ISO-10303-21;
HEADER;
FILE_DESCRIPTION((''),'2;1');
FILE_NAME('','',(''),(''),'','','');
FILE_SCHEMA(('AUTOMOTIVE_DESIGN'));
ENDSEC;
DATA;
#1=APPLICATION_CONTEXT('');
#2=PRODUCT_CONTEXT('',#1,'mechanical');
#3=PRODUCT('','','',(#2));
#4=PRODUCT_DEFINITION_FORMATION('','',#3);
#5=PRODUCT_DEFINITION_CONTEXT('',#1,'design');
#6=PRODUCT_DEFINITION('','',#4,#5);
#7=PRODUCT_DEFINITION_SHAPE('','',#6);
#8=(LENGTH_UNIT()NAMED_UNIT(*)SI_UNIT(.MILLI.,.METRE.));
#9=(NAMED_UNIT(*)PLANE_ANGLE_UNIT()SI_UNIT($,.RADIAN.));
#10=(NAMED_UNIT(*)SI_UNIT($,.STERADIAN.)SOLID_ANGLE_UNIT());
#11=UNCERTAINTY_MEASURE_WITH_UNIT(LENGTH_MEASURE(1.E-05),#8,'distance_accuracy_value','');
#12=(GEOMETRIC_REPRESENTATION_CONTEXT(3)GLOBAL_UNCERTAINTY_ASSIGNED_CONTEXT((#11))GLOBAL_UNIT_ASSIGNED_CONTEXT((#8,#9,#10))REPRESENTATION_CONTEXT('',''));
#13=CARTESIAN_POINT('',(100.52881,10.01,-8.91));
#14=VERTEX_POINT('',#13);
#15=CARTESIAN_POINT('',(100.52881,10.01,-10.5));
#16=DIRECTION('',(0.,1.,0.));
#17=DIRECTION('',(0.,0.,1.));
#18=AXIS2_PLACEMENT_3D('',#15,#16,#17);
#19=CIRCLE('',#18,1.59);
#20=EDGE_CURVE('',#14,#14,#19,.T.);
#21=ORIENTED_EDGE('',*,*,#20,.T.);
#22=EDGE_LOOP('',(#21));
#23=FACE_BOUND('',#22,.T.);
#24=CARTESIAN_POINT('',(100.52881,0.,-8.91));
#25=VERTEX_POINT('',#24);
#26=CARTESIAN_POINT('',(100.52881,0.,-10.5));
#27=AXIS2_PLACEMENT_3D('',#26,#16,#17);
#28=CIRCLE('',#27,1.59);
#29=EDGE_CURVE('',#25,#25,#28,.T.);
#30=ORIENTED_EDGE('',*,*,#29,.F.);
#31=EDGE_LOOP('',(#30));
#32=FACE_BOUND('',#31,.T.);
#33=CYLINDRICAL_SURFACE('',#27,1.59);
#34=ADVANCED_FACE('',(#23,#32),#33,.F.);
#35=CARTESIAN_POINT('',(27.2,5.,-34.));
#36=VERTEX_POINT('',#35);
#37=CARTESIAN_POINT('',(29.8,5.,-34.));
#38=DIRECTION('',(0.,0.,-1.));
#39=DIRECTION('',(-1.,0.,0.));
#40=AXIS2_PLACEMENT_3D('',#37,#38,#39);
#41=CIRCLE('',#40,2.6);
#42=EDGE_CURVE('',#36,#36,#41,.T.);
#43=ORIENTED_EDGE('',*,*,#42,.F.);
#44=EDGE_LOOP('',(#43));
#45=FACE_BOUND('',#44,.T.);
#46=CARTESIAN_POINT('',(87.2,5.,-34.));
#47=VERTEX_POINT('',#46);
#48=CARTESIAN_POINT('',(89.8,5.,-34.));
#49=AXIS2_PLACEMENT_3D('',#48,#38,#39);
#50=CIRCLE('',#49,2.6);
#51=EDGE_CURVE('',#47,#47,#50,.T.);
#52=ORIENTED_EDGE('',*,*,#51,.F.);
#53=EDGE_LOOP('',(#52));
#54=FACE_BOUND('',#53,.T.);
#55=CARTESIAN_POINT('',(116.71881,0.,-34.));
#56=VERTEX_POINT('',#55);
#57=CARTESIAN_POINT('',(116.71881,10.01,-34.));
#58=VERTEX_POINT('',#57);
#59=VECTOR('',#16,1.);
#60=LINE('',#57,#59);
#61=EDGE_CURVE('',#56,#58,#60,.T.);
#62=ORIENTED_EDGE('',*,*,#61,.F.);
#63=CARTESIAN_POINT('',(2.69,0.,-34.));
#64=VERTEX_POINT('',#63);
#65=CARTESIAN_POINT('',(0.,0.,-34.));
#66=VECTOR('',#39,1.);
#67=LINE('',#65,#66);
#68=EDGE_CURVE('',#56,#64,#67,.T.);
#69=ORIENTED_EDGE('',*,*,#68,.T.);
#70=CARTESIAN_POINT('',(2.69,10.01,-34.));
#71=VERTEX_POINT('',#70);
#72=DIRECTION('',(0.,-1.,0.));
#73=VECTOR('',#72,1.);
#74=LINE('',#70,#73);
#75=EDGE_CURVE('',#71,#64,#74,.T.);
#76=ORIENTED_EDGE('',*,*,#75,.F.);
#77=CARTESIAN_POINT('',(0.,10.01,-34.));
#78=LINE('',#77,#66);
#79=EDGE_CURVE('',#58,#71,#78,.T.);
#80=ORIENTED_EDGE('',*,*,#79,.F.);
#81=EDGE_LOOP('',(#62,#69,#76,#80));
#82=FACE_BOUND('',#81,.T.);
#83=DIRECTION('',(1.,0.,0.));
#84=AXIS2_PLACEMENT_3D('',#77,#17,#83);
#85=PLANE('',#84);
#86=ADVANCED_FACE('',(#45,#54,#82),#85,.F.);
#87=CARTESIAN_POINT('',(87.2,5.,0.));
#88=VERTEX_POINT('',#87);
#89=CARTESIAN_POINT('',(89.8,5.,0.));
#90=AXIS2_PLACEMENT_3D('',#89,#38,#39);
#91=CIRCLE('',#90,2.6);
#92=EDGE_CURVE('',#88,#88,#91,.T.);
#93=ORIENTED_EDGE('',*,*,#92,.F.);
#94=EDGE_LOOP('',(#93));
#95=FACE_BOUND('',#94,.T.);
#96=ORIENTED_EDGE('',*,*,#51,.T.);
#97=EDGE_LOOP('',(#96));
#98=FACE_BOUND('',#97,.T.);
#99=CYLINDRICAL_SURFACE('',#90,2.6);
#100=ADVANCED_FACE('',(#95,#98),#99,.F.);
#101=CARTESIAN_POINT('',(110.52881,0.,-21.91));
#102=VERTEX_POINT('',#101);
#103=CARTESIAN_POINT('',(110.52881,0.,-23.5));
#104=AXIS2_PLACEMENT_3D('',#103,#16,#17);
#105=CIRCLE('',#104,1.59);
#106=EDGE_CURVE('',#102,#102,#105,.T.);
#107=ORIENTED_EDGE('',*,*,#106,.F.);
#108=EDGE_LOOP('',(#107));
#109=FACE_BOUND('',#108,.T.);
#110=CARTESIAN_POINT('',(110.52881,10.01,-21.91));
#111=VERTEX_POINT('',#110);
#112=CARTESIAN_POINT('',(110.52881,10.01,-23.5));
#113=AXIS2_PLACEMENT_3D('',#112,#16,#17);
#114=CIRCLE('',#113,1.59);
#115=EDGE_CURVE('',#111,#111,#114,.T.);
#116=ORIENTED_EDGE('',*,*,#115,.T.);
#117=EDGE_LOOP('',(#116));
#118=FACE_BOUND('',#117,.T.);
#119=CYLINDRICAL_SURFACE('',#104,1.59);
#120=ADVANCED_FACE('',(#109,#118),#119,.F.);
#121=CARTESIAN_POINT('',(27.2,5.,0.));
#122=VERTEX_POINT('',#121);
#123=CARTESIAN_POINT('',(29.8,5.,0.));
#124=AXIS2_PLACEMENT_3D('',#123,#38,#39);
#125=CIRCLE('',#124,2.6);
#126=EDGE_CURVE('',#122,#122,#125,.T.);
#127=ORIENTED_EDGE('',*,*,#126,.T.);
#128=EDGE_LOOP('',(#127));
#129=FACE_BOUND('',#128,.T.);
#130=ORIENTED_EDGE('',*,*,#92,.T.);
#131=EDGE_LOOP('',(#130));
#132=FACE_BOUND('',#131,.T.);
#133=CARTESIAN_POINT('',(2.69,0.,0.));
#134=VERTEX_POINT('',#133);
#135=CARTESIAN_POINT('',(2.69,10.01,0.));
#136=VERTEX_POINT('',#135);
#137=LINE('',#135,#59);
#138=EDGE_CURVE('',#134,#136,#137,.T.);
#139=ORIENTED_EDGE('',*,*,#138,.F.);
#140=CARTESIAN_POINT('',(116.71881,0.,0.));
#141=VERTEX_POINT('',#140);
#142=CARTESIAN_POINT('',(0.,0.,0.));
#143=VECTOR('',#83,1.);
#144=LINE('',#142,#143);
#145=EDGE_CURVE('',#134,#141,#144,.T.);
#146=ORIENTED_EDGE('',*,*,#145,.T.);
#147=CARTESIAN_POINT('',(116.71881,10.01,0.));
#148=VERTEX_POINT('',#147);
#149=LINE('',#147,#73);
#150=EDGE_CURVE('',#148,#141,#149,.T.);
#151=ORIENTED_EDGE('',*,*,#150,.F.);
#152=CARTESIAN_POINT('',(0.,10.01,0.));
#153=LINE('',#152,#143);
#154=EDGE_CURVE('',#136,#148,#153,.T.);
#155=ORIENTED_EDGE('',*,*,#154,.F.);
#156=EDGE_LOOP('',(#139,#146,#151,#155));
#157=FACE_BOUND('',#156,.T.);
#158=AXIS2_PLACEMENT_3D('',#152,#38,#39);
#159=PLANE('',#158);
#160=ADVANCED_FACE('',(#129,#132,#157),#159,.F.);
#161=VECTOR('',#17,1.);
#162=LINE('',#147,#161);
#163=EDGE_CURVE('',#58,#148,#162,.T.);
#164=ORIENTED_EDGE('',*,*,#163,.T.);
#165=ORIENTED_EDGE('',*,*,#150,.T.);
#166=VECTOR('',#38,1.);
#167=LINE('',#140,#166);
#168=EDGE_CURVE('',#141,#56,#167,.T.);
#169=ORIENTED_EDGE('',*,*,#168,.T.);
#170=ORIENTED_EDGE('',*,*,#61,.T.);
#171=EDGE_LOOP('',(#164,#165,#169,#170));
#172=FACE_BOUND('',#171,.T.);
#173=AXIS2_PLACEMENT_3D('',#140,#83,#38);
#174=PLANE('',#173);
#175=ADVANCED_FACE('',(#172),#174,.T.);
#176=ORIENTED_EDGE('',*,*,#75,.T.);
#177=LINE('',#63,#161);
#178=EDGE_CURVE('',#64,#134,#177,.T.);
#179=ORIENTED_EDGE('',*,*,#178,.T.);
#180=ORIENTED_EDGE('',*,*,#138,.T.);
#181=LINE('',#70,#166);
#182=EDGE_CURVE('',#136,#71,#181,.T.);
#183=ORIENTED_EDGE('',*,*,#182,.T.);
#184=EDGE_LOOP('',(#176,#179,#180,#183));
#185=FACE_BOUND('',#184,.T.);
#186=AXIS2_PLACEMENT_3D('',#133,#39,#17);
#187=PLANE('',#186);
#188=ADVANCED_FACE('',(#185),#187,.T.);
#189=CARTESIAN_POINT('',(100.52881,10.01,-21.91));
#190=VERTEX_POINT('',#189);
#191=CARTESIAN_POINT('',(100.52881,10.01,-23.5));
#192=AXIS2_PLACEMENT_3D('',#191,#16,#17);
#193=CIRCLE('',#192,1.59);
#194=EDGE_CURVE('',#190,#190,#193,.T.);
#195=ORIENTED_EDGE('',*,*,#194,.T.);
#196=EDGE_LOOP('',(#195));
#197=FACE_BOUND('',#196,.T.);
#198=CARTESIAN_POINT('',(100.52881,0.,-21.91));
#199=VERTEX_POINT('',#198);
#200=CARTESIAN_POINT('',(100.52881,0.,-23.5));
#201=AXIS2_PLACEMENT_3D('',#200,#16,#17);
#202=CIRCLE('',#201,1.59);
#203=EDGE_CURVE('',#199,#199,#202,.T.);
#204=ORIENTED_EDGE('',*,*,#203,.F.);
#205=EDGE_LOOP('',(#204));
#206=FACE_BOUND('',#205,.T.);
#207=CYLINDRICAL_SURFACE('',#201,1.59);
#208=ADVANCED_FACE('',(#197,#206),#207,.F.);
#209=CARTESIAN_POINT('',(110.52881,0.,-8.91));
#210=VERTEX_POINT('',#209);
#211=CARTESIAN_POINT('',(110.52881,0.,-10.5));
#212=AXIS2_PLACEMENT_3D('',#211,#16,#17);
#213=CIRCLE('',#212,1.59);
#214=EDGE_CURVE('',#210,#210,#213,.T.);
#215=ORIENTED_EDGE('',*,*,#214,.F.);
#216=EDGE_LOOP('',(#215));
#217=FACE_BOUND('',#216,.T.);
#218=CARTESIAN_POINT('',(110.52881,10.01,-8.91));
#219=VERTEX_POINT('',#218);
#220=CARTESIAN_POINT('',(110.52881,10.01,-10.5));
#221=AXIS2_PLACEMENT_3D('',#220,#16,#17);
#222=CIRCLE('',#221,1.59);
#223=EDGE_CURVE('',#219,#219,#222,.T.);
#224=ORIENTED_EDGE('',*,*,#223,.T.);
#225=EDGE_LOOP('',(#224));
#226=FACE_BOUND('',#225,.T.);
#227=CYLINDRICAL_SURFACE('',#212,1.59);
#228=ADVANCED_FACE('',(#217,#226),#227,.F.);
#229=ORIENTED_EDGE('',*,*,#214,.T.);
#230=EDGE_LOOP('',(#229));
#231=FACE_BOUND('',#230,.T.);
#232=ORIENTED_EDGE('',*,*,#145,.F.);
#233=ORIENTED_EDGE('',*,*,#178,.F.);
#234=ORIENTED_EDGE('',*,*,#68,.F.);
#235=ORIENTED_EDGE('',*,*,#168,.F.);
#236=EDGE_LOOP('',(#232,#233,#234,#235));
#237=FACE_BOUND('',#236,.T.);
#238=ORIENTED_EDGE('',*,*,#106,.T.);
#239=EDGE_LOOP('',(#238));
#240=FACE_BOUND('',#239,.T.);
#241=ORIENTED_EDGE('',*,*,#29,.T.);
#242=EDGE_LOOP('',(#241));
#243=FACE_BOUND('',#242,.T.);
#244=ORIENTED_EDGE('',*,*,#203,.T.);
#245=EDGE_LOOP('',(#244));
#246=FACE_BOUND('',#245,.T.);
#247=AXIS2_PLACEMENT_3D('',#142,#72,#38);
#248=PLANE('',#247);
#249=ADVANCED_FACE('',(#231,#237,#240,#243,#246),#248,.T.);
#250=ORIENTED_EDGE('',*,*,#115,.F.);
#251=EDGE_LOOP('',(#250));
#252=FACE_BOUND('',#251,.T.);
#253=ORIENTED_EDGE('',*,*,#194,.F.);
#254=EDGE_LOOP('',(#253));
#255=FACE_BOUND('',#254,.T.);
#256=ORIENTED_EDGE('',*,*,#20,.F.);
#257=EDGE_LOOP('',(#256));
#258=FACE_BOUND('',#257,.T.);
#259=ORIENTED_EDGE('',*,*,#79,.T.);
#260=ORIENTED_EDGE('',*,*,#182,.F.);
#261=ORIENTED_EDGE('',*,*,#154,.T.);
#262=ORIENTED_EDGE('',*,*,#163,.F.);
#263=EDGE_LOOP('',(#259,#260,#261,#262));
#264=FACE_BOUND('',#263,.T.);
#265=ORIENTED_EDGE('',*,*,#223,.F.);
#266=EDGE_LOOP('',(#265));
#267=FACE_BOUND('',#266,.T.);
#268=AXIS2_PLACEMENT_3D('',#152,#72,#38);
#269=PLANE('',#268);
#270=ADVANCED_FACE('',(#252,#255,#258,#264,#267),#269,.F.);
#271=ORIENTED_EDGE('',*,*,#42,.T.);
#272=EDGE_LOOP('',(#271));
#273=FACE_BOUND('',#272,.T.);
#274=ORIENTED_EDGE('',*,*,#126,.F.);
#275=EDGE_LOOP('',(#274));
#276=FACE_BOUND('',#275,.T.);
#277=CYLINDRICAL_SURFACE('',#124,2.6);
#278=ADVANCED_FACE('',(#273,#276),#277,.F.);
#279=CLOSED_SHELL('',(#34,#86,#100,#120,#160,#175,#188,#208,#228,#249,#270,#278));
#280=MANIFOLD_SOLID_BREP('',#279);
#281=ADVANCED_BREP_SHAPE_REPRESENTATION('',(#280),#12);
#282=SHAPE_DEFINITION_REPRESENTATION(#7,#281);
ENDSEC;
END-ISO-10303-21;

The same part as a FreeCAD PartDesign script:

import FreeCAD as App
import Part
import Sketcher
Q = App.Units.Quantity


def add_polygon(sketch, points):
    """Adds a closed chain of lines whose ends are joined by coincident constraints."""
    first, n = sketch.GeometryCount, len(points)
    for a, b in zip(points, points[1:] + points[:1]):
        sketch.addGeometry(Part.LineSegment(App.Vector(*a, 0), App.Vector(*b, 0)), False)
    for i in range(n):
        sketch.addConstraint(Sketcher.Constraint("Coincident", first + i, 2, first + (i + 1) % n, 1))

doc = App.newDocument("Part")
body = doc.addObject("PartDesign::Body", "Body")

# Sketch on XZ plane
sketch1 = body.newObject("Sketcher::SketchObject", "Sketch")
sketch1.AttachmentSupport = (doc.getObject("XZ_Plane"), [""])
sketch1.MapMode = "FlatFace"
add_polygon(sketch1, [(0, -34), (0, 0), (114, 0), (114, -34)])  # lines 0-3
sketch1.addConstraint([
    Sketcher.Constraint("Vertical", 0),
    Sketcher.Constraint("Horizontal", 1),
    Sketcher.Constraint("Vertical", 2),
    Sketcher.Constraint("Horizontal", 3),
    Sketcher.Constraint("Coincident", 0, 2, -1, 1),
    Sketcher.Constraint("DistanceY", 0, 1, 0, 2, Q("34 mm")),
    Sketcher.Constraint("DistanceX", 1, 1, 1, 2, Q("114.02881 mm")),
])
pad1 = body.newObject("PartDesign::Pad", "Pad")
pad1.Profile = sketch1
pad1.Length = 10.01
pad1.Reversed = True

# Sketch on XY plane
sketch2 = body.newObject("Sketcher::SketchObject", "Sketch001")
sketch2.AttachmentSupport = (doc.getObject("XY_Plane"), [""])
sketch2.MapMode = "FlatFace"
sketch2.AttachmentOffset = App.Placement(App.Vector(0, 0, -34), App.Rotation())
sketch2.addGeometry([
    Part.Circle(App.Vector(89.8, 5, 0), App.Vector(0, 0, 1), 2.6),
    Part.Circle(App.Vector(29.8, 5, 0), App.Vector(0, 0, 1), 2.6),
], False)
sketch2.addConstraint([
    Sketcher.Constraint("Equal", 0, 1),
    Sketcher.Constraint("Horizontal", 0, 3, 1, 3),
    Sketcher.Constraint("Diameter", 0, Q("5.2 mm")),
    Sketcher.Constraint("DistanceY", -1, 1, 0, 3, Q("5 mm")),
    Sketcher.Constraint("DistanceX", 1, 3, 0, 3, Q("60 mm")),
    Sketcher.Constraint("DistanceX", -1, 1, 0, 3, Q("89.8 mm")),
])
pocket1 = body.newObject("PartDesign::Pocket", "Pocket")
pocket1.Profile = sketch2
pocket1.Type = "ThroughAll"
pocket1.Reversed = True

# Sketch on XZ plane
sketch3 = body.newObject("Sketcher::SketchObject", "Sketch002")
sketch3.AttachmentSupport = (doc.getObject("XZ_Plane"), [""])
sketch3.MapMode = "FlatFace"
sketch3.AttachmentOffset = App.Placement(App.Vector(0, 0, -10.01), App.Rotation())
sketch3.addGeometry([
    Part.Circle(App.Vector(110.5, -10.5, 0), App.Vector(0, 0, 1), 1.6),
    Part.Circle(App.Vector(110.5, -23.5, 0), App.Vector(0, 0, 1), 1.6),
    Part.Circle(App.Vector(100.5, -10.5, 0), App.Vector(0, 0, 1), 1.6),
    Part.Circle(App.Vector(100.5, -23.5, 0), App.Vector(0, 0, 1), 1.6),
], False)
sketch3.addConstraint([
    Sketcher.Constraint("Equal", 0, 1),
    Sketcher.Constraint("Equal", 1, 2),
    Sketcher.Constraint("Equal", 2, 3),
    Sketcher.Constraint("Horizontal", 0, 3, 2, 3),
    Sketcher.Constraint("Horizontal", 1, 3, 3, 3),
    Sketcher.Constraint("Vertical", 0, 3, 1, 3),
    Sketcher.Constraint("Vertical", 2, 3, 3, 3),
    Sketcher.Constraint("Diameter", 0, Q("3.18 mm")),
    Sketcher.Constraint("DistanceY", 1, 3, 0, 3, Q("13 mm")),
    Sketcher.Constraint("DistanceX", 2, 3, 0, 3, Q("10 mm")),
    Sketcher.Constraint("DistanceY", 0, 3, -1, 1, Q("10.5 mm")),
    Sketcher.Constraint("DistanceX", -1, 1, 0, 3, Q("110.52881 mm")),
])
pocket2 = body.newObject("PartDesign::Pocket", "Pocket001")
pocket2.Profile = sketch3
pocket2.Type = "ThroughAll"
pocket2.Reversed = True

# Sketch on YZ plane
sketch4 = body.newObject("Sketcher::SketchObject", "Sketch003")
sketch4.AttachmentSupport = (doc.getObject("YZ_Plane"), [""])
sketch4.MapMode = "FlatFace"
sketch4.AttachmentOffset = App.Placement(App.Vector(0, 0, 114.02881), App.Rotation())
add_polygon(sketch4, [(10, 0), (0, 0), (0, -34), (10, -34)])  # lines 0-3
sketch4.addConstraint([
    Sketcher.Constraint("Horizontal", 0),
    Sketcher.Constraint("Vertical", 1),
    Sketcher.Constraint("Horizontal", 2),
    Sketcher.Constraint("Vertical", 3),
    Sketcher.Constraint("Coincident", 0, 2, -1, 1),
    Sketcher.Constraint("DistanceY", 1, 2, 1, 1, Q("34 mm")),
    Sketcher.Constraint("DistanceX", 0, 2, 0, 1, Q("10.01 mm")),
])
pad2 = body.newObject("PartDesign::Pad", "Pad001")
pad2.Profile = sketch4
pad2.Length = 2.69

# Sketch on YZ plane
sketch5 = body.newObject("Sketcher::SketchObject", "Sketch004")
sketch5.AttachmentSupport = (doc.getObject("YZ_Plane"), [""])
sketch5.MapMode = "FlatFace"
add_polygon(sketch5, [(10, -34), (0, -34), (0, 0), (10, 0)])  # lines 0-3
sketch5.addConstraint([
    Sketcher.Constraint("Horizontal", 0),
    Sketcher.Constraint("Vertical", 1),
    Sketcher.Constraint("Horizontal", 2),
    Sketcher.Constraint("Vertical", 3),
    Sketcher.Constraint("Coincident", 1, 2, -1, 1),
    Sketcher.Constraint("DistanceY", 1, 1, 1, 2, Q("34 mm")),
    Sketcher.Constraint("DistanceX", 0, 2, 0, 1, Q("10.01 mm")),
])
pocket3 = body.newObject("PartDesign::Pocket", "Pocket002")
pocket3.Profile = sketch5
pocket3.Length = 2.69
pocket3.Reversed = True

doc.recompute()
